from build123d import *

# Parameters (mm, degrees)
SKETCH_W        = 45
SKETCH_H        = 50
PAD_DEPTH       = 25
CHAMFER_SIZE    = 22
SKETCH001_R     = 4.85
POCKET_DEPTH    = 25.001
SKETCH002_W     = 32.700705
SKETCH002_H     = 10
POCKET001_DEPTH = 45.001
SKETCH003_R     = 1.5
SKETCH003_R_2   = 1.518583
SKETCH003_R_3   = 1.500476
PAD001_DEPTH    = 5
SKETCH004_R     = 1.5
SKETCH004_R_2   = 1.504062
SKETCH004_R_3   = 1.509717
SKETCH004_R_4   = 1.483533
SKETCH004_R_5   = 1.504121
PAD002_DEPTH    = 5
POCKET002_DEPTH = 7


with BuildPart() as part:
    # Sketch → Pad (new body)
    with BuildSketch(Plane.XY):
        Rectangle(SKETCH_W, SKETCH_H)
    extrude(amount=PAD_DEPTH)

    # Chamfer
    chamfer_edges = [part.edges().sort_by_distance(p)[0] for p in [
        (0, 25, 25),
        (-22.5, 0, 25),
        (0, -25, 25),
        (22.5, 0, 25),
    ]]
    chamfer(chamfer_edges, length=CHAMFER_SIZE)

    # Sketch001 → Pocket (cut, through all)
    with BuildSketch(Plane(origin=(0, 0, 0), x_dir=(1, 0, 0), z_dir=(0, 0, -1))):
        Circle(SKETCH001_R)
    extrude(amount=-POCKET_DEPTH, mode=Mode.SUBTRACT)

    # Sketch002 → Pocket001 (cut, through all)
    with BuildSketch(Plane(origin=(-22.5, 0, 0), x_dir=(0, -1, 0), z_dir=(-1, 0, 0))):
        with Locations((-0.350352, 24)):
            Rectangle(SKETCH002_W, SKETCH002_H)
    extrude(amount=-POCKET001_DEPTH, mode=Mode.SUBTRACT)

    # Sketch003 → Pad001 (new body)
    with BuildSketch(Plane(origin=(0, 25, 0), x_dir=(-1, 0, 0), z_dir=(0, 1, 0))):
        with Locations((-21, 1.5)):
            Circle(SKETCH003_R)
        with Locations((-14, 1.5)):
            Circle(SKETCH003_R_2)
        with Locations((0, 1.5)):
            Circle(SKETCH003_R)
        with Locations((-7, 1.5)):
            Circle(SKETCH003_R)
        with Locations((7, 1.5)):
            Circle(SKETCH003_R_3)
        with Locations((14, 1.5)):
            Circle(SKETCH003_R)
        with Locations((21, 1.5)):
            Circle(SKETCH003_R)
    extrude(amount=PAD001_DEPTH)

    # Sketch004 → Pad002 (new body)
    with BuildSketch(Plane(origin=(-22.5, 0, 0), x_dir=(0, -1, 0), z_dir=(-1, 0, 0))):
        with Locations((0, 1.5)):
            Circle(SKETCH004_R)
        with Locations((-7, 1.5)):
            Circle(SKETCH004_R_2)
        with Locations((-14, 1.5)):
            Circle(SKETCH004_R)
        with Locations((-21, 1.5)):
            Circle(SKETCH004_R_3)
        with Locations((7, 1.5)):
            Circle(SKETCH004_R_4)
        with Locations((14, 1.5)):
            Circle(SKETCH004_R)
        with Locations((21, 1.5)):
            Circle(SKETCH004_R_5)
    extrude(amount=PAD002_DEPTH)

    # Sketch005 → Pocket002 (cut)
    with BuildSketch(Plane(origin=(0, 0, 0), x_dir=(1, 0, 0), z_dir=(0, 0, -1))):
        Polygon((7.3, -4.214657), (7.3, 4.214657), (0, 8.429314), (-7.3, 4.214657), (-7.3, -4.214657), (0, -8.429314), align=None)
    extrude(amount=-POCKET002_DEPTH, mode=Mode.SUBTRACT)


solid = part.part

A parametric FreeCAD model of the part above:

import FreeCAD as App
import Part
import Sketcher
from FreeCAD import Vector
Q = App.Units.Quantity


def edges_at(feature, points):
    """Names of the edges that pass closest to the given points."""
    edges = feature.Shape.Edges
    near = lambda p: min(range(len(edges)), key=lambda i: edges[i].distToShape(Part.Vertex(*p))[0])
    return sorted({f"Edge{near(p) + 1}" for p in points})

doc = App.newDocument("Part")
body = doc.addObject("PartDesign::Body", "Body")

# Sketch on XY plane
sketch1 = doc.addObject("Sketcher::SketchObject", "Sketch")
body.addObject(sketch1)
sketch1.AttachmentSupport = (doc.XY_Plane, [""])
sketch1.MapMode = "FlatFace"
sketch1.addGeometry([
    Part.LineSegment(Vector(-22, 25, 0), Vector(-22, -25, 0)),
    Part.LineSegment(Vector(-22, -25, 0), Vector(22, -25, 0)),
    Part.LineSegment(Vector(22, -25, 0), Vector(22, 25, 0)),
    Part.LineSegment(Vector(22, 25, 0), Vector(-22, 25, 0)),
], False)
sketch1.addConstraint([
    Sketcher.Constraint("Coincident", 0, 2, 1, 1),
    Sketcher.Constraint("Coincident", 1, 2, 2, 1),
    Sketcher.Constraint("Coincident", 2, 2, 3, 1),
    Sketcher.Constraint("Coincident", 3, 2, 0, 1),
    Sketcher.Constraint("Vertical", 0),
    Sketcher.Constraint("Horizontal", 1),
    Sketcher.Constraint("Vertical", 2),
    Sketcher.Constraint("Horizontal", 3),
    Sketcher.Constraint("Symmetric", 0, 2, 2, 2, -1, 1),
    Sketcher.Constraint("DistanceX", 1, 1, 1, 2, 45.0),
    Sketcher.Constraint("DistanceY", 0, 2, 0, 1, 50.0),
])
pad1 = doc.addObject("PartDesign::Pad", "Pad")
body.addObject(pad1)
pad1.Profile = sketch1
pad1.Length = 25
doc.recompute()

chamfer = doc.addObject("PartDesign::Chamfer", "Chamfer")
body.addObject(chamfer)
chamfer.Base = (pad1, edges_at(pad1, [
    (0, 25, 25),
    (-22.5, 0, 25),
    (0, -25, 25),
    (22.5, 0, 25),
]))
chamfer.Size = 22

# Sketch on XY plane
sketch2 = doc.addObject("Sketcher::SketchObject", "Sketch001")
body.addObject(sketch2)
sketch2.AttachmentSupport = (doc.XY_Plane, [""])
sketch2.MapMode = "FlatFace"
sketch2.addGeometry(Part.Circle(Vector(0, 0, 0), Vector(0, 0, 1), 4.8), False)
sketch2.addConstraint([
    Sketcher.Constraint("Coincident", 0, 3, -1, 1),
    Sketcher.Constraint("Diameter", 0, 9.7),
])
pocket1 = doc.addObject("PartDesign::Pocket", "Pocket")
body.addObject(pocket1)
pocket1.Profile = sketch2
pocket1.Type = "ThroughAll"
pocket1.Reversed = True

# Sketch on YZ plane
sketch3 = doc.addObject("Sketcher::SketchObject", "Sketch002")
body.addObject(sketch3)
sketch3.AttachmentSupport = (doc.YZ_Plane, [""])
sketch3.MapMode = "FlatFace"
sketch3.AttachmentOffset = App.Placement(Vector(0, 0, -22.5), App.Rotation())
sketch3.addGeometry([
    Part.LineSegment(Vector(17, 29, 0), Vector(17, 19, 0)),
    Part.LineSegment(Vector(17, 19, 0), Vector(-16, 19, 0)),
    Part.LineSegment(Vector(-16, 19, 0), Vector(-16, 29, 0)),
    Part.LineSegment(Vector(-16, 29, 0), Vector(17, 29, 0)),
], False)
sketch3.addConstraint([
    Sketcher.Constraint("Coincident", 0, 2, 1, 1),
    Sketcher.Constraint("Coincident", 1, 2, 2, 1),
    Sketcher.Constraint("Coincident", 2, 2, 3, 1),
    Sketcher.Constraint("Coincident", 3, 2, 0, 1),
    Sketcher.Constraint("Vertical", 0),
    Sketcher.Constraint("Horizontal", 1),
    Sketcher.Constraint("Vertical", 2),
    Sketcher.Constraint("Horizontal", 3),
    Sketcher.Constraint("DistanceY", 0, 2, 0, 1, 10.0),
    Sketcher.Constraint("DistanceY", -1, 1, 0, 2, 19.0),
    Sketcher.Constraint("DistanceX", 1, 2, -1, 1, 16.0),
    Sketcher.Constraint("DistanceX", 1, 2, 1, 1, 32.700705),
])
pocket2 = doc.addObject("PartDesign::Pocket", "Pocket001")
body.addObject(pocket2)
pocket2.Profile = sketch3
pocket2.Type = "ThroughAll"
pocket2.Reversed = True

# Sketch on XZ plane
sketch4 = doc.addObject("Sketcher::SketchObject", "Sketch003")
body.addObject(sketch4)
sketch4.AttachmentSupport = (doc.XZ_Plane, [""])
sketch4.MapMode = "FlatFace"
sketch4.AttachmentOffset = App.Placement(Vector(0, 0, -25), App.Rotation())
sketch4.addGeometry([
    Part.Circle(Vector(21, 1.5, 0), Vector(0, 0, 1), 1.5),  # 0
    Part.Circle(Vector(14, 1.5, 0), Vector(0, 0, 1), 1.5),  # 1
    Part.Circle(Vector(0, 1.5, 0), Vector(0, 0, 1), 1.5),  # 2
    Part.Circle(Vector(7, 1.5, 0), Vector(0, 0, 1), 1.5),  # 3
    Part.Circle(Vector(-7, 1.5, 0), Vector(0, 0, 1), 1.5),  # 4
    Part.Circle(Vector(-14, 1.5, 0), Vector(0, 0, 1), 1.5),  # 5
    Part.Circle(Vector(-21, 1.5, 0), Vector(0, 0, 1), 1.5),  # 6
], False)
sketch4.addConstraint([
    Sketcher.Constraint("Equal", 0, 2),
    Sketcher.Constraint("Equal", 2, 3),
    Sketcher.Constraint("Equal", 3, 5),
    Sketcher.Constraint("Equal", 5, 6),
    Sketcher.Constraint("Symmetric", 3, 3, 4, 3, -2),
    Sketcher.Constraint("Symmetric", 1, 3, 5, 3, -2),
    Sketcher.Constraint("Symmetric", 0, 3, 6, 3, -2),
    Sketcher.Constraint("PointOnObject", 2, 3, -2),
    Sketcher.Constraint("Horizontal", 0, 3, 1, 3),
    Sketcher.Constraint("Horizontal", 1, 3, 2, 3),
    Sketcher.Constraint("Horizontal", 2, 3, 3, 3),
    Sketcher.Constraint("Diameter", 0, 3.0),
    Sketcher.Constraint("DistanceX", -1, 1, 0, 3, 21.0),
    Sketcher.Constraint("DistanceX", -1, 1, 1, 3, 14.0),
    Sketcher.Constraint("DistanceX", -1, 1, 3, 3, 7.0),
    Sketcher.Constraint("DistanceY", -1, 1, 0, 3, 1.5),
    Sketcher.Constraint("Diameter", 4, 3.000952),
    Sketcher.Constraint("Diameter", 1, 3.037166),
])
pad2 = doc.addObject("PartDesign::Pad", "Pad001")
body.addObject(pad2)
pad2.Profile = sketch4
pad2.Length = 5
pad2.Reversed = True

# Sketch on YZ plane
sketch5 = doc.addObject("Sketcher::SketchObject", "Sketch004")
body.addObject(sketch5)
sketch5.AttachmentSupport = (doc.YZ_Plane, [""])
sketch5.MapMode = "FlatFace"
sketch5.AttachmentOffset = App.Placement(Vector(0, 0, -22.5), App.Rotation())
sketch5.addGeometry([
    Part.Circle(Vector(0, 1.5, 0), Vector(0, 0, 1), 1.5),  # 0
    Part.Circle(Vector(7, 1.5, 0), Vector(0, 0, 1), 1.5),  # 1
    Part.Circle(Vector(14, 1.5, 0), Vector(0, 0, 1), 1.5),  # 2
    Part.Circle(Vector(21, 1.5, 0), Vector(0, 0, 1), 1.5),  # 3
    Part.Circle(Vector(-7, 1.5, 0), Vector(0, 0, 1), 1.5),  # 4
    Part.Circle(Vector(-14, 1.5, 0), Vector(0, 0, 1), 1.5),  # 5
    Part.Circle(Vector(-21, 1.5, 0), Vector(0, 0, 1), 1.5),  # 6
], False)
sketch5.addConstraint([
    Sketcher.Constraint("Equal", 0, 2),
    Sketcher.Constraint("Equal", 2, 5),
    Sketcher.Constraint("Symmetric", 1, 3, 4, 3, -2),
    Sketcher.Constraint("Symmetric", 2, 3, 5, 3, -2),
    Sketcher.Constraint("Symmetric", 3, 3, 6, 3, -2),
    Sketcher.Constraint("PointOnObject", 0, 3, -2),
    Sketcher.Constraint("Horizontal", 0, 3, 1, 3),
    Sketcher.Constraint("Horizontal", 1, 3, 2, 3),
    Sketcher.Constraint("Horizontal", 2, 3, 3, 3),
    Sketcher.Constraint("Diameter", 0, 3.0),
    Sketcher.Constraint("DistanceX", -1, 1, 1, 3, 7.0),
    Sketcher.Constraint("DistanceX", -1, 1, 2, 3, 14.0),
    Sketcher.Constraint("DistanceX", -1, 1, 3, 3, 21.0),
    Sketcher.Constraint("DistanceY", -1, 1, 0, 3, 1.5),
    Sketcher.Constraint("Diameter", 1, 3.008124),
    Sketcher.Constraint("Diameter", 3, 3.019434),
    Sketcher.Constraint("Diameter", 4, 2.967066),
    Sketcher.Constraint("Diameter", 6, 3.008242),
])
pad3 = doc.addObject("PartDesign::Pad", "Pad002")
body.addObject(pad3)
pad3.Profile = sketch5
pad3.Length = 5
pad3.Reversed = True

# Sketch on XY plane
sketch6 = doc.addObject("Sketcher::SketchObject", "Sketch005")
body.addObject(sketch6)
sketch6.AttachmentSupport = (doc.XY_Plane, [""])
sketch6.MapMode = "FlatFace"
sketch6.addGeometry([
    Part.LineSegment(Vector(7, 4, 0), Vector(7, -4, 0)),  # 0
    Part.LineSegment(Vector(7, -4, 0), Vector(0, -8, 0)),  # 1
    Part.LineSegment(Vector(0, -8, 0), Vector(-7, -4, 0)),  # 2
    Part.LineSegment(Vector(-7, -4, 0), Vector(-7, 4, 0)),  # 3
    Part.LineSegment(Vector(-7, 4, 0), Vector(0, 8, 0)),  # 4
    Part.LineSegment(Vector(0, 8, 0), Vector(7, 4, 0)),  # 5
], False)
sketch6.addConstraint([
    Sketcher.Constraint("Coincident", 0, 2, 1, 1),
    Sketcher.Constraint("Coincident", 1, 2, 2, 1),
    Sketcher.Constraint("Coincident", 2, 2, 3, 1),
    Sketcher.Constraint("Coincident", 3, 2, 4, 1),
    Sketcher.Constraint("Coincident", 4, 2, 5, 1),
    Sketcher.Constraint("Coincident", 5, 2, 0, 1),
    Sketcher.Constraint("Vertical", 0),
    Sketcher.Constraint("Vertical", 3),
    Sketcher.Constraint("Symmetric", 0, 2, 3, 2, -1, 1),
    Sketcher.Constraint("Symmetric", 1, 2, 4, 2, -1, 1),
    Sketcher.Constraint("PointOnObject", 1, 2, -2),
    Sketcher.Constraint("Parallel", 2, 5),
    Sketcher.Constraint("Horizontal", 0, 2, 2, 2),
    Sketcher.Constraint("Angle", 1, Q("-150 deg")),
    Sketcher.Constraint("DistanceX", -1, 1, 0, 2, 7.3),
    Sketcher.Constraint("DistanceY", 0, 2, 0, 1, 8.429314),
])
pocket3 = doc.addObject("PartDesign::Pocket", "Pocket002")
body.addObject(pocket3)
pocket3.Profile = sketch6
pocket3.Length = 7
pocket3.Reversed = True

doc.recompute()
